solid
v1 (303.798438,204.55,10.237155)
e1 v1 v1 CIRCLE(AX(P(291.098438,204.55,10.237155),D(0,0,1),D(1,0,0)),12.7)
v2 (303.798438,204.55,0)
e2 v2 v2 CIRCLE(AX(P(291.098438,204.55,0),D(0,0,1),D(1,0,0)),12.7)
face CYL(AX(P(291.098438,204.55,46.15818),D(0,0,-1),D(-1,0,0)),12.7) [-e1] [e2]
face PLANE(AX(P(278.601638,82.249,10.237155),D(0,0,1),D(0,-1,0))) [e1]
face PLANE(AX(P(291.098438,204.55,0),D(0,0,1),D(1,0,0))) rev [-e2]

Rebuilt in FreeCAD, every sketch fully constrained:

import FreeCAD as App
import Part
import Sketcher
Q = App.Units.Quantity

doc = App.newDocument("Part")
body = doc.addObject("PartDesign::Body", "Body")

# Sketch on XY plane
sketch1 = body.newObject("Sketcher::SketchObject", "Sketch")
sketch1.AttachmentSupport = (doc.getObject("XY_Plane"), [""])
sketch1.MapMode = "FlatFace"
sketch1.addGeometry(Part.Circle(App.Vector(291, 205, 0), App.Vector(0, 0, 1), 13), False)
sketch1.addConstraint([
    Sketcher.Constraint("Diameter", 0, Q("1 in")),
    Sketcher.Constraint("DistanceY", -1, 1, 0, 3, Q("204.55 mm")),
    Sketcher.Constraint("DistanceX", -1, 1, 0, 3, Q("291.098438 mm")),
])
pad1 = body.newObject("PartDesign::Pad", "Pad")
pad1.Profile = sketch1
pad1.Length = 10.237155

doc.recompute()
